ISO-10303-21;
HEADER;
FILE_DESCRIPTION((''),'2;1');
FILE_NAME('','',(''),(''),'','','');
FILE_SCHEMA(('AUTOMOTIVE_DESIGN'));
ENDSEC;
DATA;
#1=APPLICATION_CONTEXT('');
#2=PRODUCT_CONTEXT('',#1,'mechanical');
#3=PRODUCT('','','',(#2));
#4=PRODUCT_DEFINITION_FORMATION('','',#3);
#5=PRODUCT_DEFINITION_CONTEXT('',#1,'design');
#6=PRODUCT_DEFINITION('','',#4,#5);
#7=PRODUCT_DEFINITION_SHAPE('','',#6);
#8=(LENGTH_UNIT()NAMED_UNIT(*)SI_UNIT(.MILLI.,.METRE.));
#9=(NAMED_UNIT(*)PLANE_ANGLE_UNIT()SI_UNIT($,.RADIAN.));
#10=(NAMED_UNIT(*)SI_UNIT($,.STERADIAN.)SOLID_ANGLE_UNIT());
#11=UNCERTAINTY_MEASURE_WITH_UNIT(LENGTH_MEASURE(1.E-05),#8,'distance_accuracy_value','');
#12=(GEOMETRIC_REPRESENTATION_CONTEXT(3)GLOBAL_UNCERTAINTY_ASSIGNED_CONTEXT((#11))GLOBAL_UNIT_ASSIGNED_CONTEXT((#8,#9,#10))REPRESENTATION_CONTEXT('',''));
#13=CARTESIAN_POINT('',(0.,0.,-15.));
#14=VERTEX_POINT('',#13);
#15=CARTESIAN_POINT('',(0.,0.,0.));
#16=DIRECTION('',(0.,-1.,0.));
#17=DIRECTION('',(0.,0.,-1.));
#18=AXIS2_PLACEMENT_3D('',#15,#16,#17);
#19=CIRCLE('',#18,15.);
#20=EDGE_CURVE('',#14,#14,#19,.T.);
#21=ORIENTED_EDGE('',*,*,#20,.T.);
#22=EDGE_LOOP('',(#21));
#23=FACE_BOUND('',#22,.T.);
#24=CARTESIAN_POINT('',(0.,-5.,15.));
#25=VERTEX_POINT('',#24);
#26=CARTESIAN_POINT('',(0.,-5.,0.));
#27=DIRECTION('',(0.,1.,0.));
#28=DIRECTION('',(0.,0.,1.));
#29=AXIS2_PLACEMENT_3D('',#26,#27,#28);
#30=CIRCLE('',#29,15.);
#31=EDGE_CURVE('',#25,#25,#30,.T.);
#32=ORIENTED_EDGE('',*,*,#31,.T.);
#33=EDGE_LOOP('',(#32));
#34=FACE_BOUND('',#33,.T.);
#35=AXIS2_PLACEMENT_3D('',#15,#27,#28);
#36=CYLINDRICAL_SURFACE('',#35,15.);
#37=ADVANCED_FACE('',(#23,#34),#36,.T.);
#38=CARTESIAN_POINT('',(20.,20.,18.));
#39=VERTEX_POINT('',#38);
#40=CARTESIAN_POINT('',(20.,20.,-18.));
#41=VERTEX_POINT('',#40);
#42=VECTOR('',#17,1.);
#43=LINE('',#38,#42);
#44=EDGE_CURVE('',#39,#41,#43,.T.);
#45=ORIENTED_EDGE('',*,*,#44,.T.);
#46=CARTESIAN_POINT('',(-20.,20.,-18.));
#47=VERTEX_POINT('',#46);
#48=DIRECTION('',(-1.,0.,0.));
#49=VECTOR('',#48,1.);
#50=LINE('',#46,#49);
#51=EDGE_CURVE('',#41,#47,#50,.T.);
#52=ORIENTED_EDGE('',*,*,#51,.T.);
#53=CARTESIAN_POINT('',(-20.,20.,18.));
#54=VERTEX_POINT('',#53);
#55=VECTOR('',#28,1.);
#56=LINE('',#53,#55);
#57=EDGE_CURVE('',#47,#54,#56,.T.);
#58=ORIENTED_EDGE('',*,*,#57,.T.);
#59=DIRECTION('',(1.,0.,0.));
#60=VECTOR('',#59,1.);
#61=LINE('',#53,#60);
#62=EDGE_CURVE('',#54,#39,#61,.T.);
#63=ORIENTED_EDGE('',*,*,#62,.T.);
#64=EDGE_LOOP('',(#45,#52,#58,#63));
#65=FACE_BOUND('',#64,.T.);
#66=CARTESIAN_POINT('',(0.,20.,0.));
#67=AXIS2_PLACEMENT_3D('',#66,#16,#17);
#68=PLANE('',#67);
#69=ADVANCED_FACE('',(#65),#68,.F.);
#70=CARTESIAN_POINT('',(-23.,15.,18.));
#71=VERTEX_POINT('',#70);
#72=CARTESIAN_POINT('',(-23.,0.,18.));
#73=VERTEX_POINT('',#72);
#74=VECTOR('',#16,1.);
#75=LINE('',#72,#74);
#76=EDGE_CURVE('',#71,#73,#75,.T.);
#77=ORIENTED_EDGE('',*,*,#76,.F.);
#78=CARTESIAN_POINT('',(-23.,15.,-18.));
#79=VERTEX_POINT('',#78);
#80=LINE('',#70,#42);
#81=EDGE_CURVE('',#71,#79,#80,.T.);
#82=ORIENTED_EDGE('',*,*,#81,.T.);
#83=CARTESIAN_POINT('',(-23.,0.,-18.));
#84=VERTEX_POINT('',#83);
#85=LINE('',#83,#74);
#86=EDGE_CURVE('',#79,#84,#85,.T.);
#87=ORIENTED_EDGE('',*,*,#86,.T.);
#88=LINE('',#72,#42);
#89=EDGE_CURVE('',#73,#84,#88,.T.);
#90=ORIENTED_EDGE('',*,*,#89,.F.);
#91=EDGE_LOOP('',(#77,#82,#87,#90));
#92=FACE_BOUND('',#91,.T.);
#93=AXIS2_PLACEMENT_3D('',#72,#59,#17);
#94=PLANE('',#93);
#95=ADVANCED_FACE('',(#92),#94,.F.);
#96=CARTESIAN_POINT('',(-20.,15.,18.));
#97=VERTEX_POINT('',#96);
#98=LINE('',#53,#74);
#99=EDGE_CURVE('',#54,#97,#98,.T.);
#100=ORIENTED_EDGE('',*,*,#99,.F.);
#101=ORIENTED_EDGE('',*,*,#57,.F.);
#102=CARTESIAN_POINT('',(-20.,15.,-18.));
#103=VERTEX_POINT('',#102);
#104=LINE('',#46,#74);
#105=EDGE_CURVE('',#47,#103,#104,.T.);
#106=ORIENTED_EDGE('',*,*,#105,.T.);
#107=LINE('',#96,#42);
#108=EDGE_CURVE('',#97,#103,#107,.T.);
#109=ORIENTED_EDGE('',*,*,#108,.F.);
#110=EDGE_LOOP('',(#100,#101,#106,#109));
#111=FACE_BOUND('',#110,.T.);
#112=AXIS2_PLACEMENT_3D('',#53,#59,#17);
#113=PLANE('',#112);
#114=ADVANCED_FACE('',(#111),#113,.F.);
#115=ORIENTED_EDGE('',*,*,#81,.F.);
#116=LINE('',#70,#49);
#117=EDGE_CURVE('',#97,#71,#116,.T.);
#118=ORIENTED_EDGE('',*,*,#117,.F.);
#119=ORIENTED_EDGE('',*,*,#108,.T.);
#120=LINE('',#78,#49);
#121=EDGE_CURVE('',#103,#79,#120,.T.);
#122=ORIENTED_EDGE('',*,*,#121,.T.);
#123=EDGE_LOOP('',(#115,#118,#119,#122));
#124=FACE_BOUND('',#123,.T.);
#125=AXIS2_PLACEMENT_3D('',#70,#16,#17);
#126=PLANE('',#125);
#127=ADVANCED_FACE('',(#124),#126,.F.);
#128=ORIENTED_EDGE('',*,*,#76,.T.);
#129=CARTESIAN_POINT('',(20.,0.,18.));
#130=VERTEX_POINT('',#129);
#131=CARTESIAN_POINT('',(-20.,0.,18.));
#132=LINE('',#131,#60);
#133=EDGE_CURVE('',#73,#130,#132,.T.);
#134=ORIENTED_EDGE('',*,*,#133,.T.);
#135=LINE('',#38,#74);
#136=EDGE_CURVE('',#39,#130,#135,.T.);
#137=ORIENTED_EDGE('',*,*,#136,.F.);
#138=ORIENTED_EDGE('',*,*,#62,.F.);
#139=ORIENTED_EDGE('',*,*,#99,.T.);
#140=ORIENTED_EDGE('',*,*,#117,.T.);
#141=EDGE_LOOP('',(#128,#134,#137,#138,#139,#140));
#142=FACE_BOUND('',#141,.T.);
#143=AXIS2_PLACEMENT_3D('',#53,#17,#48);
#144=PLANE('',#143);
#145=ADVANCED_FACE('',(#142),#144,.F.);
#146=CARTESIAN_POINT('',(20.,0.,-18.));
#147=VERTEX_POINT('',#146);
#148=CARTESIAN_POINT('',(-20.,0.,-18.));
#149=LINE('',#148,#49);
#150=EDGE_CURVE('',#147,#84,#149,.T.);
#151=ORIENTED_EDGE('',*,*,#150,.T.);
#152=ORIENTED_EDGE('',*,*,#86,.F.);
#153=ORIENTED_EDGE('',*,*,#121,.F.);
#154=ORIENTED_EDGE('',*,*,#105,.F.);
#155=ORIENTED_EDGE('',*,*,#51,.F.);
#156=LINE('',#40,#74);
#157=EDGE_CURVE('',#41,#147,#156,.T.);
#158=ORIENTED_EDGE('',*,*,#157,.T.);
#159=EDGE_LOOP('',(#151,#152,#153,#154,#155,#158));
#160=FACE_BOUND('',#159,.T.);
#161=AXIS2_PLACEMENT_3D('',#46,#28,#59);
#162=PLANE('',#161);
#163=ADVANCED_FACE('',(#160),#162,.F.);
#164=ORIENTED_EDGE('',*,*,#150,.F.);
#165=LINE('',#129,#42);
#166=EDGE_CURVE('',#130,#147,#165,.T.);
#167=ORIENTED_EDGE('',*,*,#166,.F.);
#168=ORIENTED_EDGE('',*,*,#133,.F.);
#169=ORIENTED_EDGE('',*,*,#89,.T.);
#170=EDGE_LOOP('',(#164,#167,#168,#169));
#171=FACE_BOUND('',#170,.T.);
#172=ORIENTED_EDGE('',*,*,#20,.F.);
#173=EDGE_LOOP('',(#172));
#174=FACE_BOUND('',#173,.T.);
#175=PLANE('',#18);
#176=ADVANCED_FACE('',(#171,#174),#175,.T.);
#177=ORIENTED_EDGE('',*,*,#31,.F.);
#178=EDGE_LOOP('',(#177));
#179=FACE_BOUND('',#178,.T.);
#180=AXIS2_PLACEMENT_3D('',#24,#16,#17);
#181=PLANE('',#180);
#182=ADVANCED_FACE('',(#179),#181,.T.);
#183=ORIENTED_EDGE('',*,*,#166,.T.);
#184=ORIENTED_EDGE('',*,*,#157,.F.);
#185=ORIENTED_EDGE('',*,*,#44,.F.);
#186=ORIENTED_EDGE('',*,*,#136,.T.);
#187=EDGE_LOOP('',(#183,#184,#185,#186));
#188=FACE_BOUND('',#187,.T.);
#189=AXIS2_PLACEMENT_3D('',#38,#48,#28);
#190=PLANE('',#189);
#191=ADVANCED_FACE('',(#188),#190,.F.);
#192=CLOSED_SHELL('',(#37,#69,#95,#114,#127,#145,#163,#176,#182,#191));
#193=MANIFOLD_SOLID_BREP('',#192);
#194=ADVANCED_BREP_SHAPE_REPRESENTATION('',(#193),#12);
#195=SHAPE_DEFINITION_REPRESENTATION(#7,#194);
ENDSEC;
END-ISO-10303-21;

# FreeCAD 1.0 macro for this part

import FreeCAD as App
import Part
import Sketcher
from FreeCAD import Vector

doc = App.newDocument("Part")
body = doc.addObject("PartDesign::Body", "Body")

# Sketch on XZ plane
sketch1 = body.newObject("Sketcher::SketchObject", "Sketch")
sketch1.AttachmentSupport = (doc.getObject("XZ_Plane"), [""])
sketch1.MapMode = "FlatFace"
sketch1.addGeometry([
    Part.LineSegment(Vector(-20, -18, 0), Vector(-20, 18, 0)),
    Part.LineSegment(Vector(-20, 18, 0), Vector(20, 18, 0)),
    Part.LineSegment(Vector(20, 18, 0), Vector(20, -18, 0)),
    Part.LineSegment(Vector(20, -18, 0), Vector(-20, -18, 0)),
], False)
sketch1.addConstraint([
    Sketcher.Constraint("Coincident", 0, 2, 1, 1),
    Sketcher.Constraint("Coincident", 1, 2, 2, 1),
    Sketcher.Constraint("Coincident", 2, 2, 3, 1),
    Sketcher.Constraint("Coincident", 3, 2, 0, 1),
    Sketcher.Constraint("Vertical", 0),
    Sketcher.Constraint("Horizontal", 1),
    Sketcher.Constraint("Vertical", 2),
    Sketcher.Constraint("Horizontal", 3),
    Sketcher.Constraint("Symmetric", 0, 2, 2, 2, -1, 1),
    Sketcher.Constraint("DistanceX", 1, 1, 1, 2, 40.0),
    Sketcher.Constraint("DistanceY", 0, 1, 0, 2, 36.0),
])
pad1 = body.newObject("PartDesign::Pad", "Pad")
pad1.Profile = sketch1
pad1.Length = 20
pad1.Reversed = True

# Sketch on YZ plane
sketch2 = body.newObject("Sketcher::SketchObject", "Sketch001")
sketch2.AttachmentSupport = (doc.getObject("YZ_Plane"), [""])
sketch2.MapMode = "FlatFace"
sketch2.addGeometry([
    Part.LineSegment(Vector(0, 0, 0), Vector(1, 15, 0)),
    Part.LineSegment(Vector(1, 15, 0), Vector(-5, 15, 0)),
    Part.LineSegment(Vector(-5, 15, 0), Vector(-5, 0, 0)),
    Part.LineSegment(Vector(-5, 0, 0), Vector(0, 0, 0)),
], False)
sketch2.addConstraint([
    Sketcher.Constraint("Coincident", 0, 2, 1, 1),
    Sketcher.Constraint("Coincident", 1, 2, 2, 1),
    Sketcher.Constraint("Coincident", 2, 2, 3, 1),
    Sketcher.Constraint("Coincident", 3, 2, 0, 1),
    Sketcher.Constraint("Horizontal", 1),
    Sketcher.Constraint("Vertical", 2),
    Sketcher.Constraint("Horizontal", 3),
    Sketcher.Constraint("Coincident", 3, 2, -1, 1),
    Sketcher.Constraint("DistanceX", 3, 1, 3, 2, 5.0),
    Sketcher.Constraint("DistanceY", 2, 2, 2, 1, 15.0),
    Sketcher.Constraint("DistanceX", 1, 2, 1, 1, 6.022669),
])
revolution = body.newObject("PartDesign::Revolution", "Revolution")
revolution.Profile = sketch2
revolution.ReferenceAxis = (sketch2, ["H_Axis"])
revolution.Angle = 360

# Sketch on XY plane
sketch3 = body.newObject("Sketcher::SketchObject", "Sketch002")
sketch3.AttachmentSupport = (doc.getObject("XY_Plane"), [""])
sketch3.MapMode = "FlatFace"
sketch3.addGeometry([
    Part.LineSegment(Vector(-23, 15, 0), Vector(-23, 0, 0)),
    Part.LineSegment(Vector(-23, 0, 0), Vector(-20, 0, 0)),
    Part.LineSegment(Vector(-20, 0, 0), Vector(-20, 15, 0)),
    Part.LineSegment(Vector(-20, 15, 0), Vector(-23, 15, 0)),
], False)
sketch3.addConstraint([
    Sketcher.Constraint("Coincident", 0, 2, 1, 1),
    Sketcher.Constraint("Coincident", 1, 2, 2, 1),
    Sketcher.Constraint("Coincident", 2, 2, 3, 1),
    Sketcher.Constraint("Coincident", 3, 2, 0, 1),
    Sketcher.Constraint("Vertical", 0),
    Sketcher.Constraint("Horizontal", 1),
    Sketcher.Constraint("Vertical", 2),
    Sketcher.Constraint("Horizontal", 3),
    Sketcher.Constraint("PointOnObject", 0, 2, -1),
    Sketcher.Constraint("DistanceX", 1, 1, 1, 2, 3.0),
    Sketcher.Constraint("DistanceY", 0, 2, 0, 1, 15.0),
    Sketcher.Constraint("DistanceX", 0, 2, -1, 1, 23.0),
])
pad2 = body.newObject("PartDesign::Pad", "Pad001")
pad2.Profile = sketch3
pad2.Type = "TwoLengths"
pad2.Length = 18
pad2.Length2 = 18

doc.recompute()
